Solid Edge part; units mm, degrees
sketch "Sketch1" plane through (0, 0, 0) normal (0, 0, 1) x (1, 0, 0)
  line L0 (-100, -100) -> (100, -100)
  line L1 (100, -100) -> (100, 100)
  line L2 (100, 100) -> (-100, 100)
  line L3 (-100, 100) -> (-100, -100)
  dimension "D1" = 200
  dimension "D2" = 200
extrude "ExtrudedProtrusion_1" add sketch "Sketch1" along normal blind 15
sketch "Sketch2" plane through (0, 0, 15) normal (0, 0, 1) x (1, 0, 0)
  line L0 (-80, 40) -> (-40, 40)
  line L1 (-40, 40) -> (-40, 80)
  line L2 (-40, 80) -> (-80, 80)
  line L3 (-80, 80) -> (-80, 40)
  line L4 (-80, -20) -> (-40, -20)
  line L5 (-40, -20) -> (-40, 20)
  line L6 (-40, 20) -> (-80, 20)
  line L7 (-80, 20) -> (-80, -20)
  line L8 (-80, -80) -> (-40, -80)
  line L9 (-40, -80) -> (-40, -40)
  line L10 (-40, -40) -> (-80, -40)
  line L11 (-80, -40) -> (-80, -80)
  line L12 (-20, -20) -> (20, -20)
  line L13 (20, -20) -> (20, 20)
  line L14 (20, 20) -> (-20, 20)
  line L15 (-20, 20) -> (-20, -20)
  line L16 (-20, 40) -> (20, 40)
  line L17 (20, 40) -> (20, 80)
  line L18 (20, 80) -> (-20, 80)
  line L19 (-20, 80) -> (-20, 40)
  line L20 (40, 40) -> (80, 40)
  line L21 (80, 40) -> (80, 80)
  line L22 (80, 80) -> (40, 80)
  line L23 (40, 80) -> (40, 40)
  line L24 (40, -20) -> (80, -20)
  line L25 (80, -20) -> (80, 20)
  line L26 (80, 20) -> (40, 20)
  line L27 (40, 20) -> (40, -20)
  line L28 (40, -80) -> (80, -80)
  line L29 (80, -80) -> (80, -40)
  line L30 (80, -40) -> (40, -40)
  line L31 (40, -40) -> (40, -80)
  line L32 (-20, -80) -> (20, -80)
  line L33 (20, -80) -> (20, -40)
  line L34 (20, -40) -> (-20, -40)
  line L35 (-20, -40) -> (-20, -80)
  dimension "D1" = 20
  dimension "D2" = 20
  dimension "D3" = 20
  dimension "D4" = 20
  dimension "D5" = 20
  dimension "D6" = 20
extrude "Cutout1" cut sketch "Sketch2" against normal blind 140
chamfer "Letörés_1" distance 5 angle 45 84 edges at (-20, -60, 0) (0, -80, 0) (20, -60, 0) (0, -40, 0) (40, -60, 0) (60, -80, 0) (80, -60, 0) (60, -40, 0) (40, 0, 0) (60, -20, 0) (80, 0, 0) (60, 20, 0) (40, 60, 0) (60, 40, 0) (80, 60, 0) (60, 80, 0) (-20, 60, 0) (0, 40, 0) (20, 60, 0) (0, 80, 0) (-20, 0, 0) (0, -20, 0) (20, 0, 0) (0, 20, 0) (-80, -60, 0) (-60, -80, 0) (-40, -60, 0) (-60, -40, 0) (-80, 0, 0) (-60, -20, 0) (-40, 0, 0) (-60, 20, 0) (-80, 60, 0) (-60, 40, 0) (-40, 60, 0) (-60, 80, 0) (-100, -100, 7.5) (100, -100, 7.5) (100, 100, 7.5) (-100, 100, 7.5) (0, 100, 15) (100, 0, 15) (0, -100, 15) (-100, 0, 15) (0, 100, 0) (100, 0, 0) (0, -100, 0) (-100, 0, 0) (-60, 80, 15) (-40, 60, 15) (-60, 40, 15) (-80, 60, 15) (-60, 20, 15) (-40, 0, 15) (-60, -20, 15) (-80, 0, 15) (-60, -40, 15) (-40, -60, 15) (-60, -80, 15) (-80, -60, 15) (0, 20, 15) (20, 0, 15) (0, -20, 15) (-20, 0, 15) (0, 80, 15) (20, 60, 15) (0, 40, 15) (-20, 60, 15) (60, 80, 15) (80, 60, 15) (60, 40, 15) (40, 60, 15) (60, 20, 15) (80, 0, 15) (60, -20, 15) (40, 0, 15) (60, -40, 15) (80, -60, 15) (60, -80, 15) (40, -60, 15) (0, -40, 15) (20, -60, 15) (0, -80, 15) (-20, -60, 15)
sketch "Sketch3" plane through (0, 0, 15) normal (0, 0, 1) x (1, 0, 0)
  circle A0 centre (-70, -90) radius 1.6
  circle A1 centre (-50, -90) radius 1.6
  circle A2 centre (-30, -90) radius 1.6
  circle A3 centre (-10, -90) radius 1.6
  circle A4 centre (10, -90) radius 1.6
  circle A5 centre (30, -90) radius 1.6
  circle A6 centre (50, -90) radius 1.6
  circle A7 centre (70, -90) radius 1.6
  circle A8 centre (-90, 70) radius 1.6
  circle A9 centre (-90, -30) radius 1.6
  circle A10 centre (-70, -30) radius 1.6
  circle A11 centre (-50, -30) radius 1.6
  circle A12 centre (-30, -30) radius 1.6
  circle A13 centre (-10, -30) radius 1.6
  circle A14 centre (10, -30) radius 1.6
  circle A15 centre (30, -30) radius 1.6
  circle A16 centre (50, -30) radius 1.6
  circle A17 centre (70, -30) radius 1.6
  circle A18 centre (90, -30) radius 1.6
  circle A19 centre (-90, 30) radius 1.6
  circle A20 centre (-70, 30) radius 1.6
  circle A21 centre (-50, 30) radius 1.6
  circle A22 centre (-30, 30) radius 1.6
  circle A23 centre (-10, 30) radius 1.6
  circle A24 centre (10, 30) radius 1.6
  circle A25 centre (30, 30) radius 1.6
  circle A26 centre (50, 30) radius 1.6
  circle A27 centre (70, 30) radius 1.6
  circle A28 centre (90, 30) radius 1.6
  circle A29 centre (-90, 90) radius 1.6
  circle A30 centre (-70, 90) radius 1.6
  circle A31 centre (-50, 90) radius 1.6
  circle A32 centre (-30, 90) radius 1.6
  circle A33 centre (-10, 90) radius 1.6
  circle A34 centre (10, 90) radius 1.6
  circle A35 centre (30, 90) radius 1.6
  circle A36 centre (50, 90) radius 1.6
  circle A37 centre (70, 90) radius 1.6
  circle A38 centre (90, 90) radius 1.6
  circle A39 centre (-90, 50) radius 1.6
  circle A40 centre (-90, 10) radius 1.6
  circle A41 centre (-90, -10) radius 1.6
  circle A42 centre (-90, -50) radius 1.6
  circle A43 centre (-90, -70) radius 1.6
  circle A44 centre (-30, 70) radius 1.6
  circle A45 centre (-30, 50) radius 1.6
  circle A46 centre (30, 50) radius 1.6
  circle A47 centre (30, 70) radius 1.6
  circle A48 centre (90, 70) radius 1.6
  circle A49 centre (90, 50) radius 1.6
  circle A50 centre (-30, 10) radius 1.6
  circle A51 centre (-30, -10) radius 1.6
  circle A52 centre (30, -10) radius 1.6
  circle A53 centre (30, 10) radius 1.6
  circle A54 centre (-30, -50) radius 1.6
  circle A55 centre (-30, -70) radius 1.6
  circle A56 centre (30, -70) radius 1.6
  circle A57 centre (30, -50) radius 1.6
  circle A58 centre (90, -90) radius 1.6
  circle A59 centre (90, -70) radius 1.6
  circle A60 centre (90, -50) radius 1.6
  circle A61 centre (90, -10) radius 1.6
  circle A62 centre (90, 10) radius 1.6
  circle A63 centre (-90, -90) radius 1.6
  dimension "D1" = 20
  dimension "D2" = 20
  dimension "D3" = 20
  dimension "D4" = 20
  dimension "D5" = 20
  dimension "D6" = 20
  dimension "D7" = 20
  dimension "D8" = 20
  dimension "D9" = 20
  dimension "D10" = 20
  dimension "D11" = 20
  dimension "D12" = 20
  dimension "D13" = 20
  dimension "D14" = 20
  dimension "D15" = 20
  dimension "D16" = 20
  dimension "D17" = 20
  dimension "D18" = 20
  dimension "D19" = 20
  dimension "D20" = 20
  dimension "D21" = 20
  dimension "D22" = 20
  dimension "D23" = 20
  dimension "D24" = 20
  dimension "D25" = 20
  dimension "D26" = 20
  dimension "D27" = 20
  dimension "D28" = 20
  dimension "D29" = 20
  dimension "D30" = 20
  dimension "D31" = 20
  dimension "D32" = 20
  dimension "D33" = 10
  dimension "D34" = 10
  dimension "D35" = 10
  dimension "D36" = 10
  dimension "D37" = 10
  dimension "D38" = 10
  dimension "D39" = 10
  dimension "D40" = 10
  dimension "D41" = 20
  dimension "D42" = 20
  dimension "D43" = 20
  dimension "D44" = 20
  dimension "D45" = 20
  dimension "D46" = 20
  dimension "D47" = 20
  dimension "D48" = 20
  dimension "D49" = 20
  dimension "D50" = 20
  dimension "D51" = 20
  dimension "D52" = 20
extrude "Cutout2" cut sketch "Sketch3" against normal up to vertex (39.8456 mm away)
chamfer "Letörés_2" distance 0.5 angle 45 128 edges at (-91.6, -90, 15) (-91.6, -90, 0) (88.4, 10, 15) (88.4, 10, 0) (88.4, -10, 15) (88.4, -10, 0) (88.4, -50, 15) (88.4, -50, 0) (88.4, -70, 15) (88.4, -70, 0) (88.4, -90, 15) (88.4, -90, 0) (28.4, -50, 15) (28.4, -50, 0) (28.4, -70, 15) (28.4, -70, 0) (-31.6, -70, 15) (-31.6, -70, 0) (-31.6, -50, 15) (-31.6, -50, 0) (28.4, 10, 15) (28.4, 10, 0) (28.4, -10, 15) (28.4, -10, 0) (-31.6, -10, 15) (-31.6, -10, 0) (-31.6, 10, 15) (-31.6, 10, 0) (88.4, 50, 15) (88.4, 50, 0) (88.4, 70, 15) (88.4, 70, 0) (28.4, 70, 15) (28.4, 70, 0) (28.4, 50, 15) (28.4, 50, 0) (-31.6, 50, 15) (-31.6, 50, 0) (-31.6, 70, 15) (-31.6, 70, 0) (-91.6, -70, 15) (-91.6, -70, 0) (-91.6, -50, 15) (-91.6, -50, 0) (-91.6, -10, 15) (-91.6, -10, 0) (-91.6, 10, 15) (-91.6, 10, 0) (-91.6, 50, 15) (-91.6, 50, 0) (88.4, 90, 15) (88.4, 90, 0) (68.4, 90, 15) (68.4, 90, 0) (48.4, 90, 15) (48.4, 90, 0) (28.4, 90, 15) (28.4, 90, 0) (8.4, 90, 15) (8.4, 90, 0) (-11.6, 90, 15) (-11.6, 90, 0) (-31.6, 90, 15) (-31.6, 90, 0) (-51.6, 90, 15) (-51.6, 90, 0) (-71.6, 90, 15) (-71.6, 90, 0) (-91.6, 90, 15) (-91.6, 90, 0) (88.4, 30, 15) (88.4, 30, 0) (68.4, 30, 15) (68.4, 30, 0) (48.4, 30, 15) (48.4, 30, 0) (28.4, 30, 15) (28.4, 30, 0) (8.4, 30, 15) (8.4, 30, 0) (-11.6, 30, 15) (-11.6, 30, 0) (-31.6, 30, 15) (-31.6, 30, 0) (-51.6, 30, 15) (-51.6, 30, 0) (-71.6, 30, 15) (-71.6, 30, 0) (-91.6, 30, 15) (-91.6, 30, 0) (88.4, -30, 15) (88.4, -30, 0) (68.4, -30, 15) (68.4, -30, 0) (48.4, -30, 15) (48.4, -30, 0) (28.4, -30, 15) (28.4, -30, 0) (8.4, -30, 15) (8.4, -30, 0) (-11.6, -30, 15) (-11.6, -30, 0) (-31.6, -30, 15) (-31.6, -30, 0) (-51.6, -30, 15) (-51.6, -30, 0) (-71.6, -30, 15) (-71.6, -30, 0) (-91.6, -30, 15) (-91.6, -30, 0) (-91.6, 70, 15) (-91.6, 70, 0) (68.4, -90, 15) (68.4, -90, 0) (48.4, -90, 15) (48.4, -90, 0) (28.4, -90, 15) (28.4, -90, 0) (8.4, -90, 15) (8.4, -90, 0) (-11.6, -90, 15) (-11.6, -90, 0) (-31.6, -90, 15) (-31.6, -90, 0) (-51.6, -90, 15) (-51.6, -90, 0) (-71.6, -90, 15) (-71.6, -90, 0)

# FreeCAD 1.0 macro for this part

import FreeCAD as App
import Part
import Sketcher
from FreeCAD import Vector


def edges_at(feature, points):
    """Names of the edges that pass closest to the given points."""
    edges = feature.Shape.Edges
    near = lambda p: min(range(len(edges)), key=lambda i: edges[i].distToShape(Part.Vertex(*p))[0])
    return sorted({f"Edge{near(p) + 1}" for p in points})

doc = App.newDocument("Part")
params = doc.addObject("Spreadsheet::Sheet", "Params")
for row, (alias, value) in enumerate([
    ("pad1_length", "15 mm"),
    ("sketch2_width", "40 mm"),
    ("pocket1_length", "140 mm"),
    ("chamfer_size", "5 mm"),
    ("sketch3_diameter", "3.2 mm"),
    ("pocket2_length", "39.8456 mm"),
    ("chamfer2_size", "0.5 mm"),
], start=1):
    params.set(f"A{row}", alias)
    params.set(f"B{row}", "=" + value)
    params.setAlias(f"B{row}", alias)

body = doc.addObject("PartDesign::Body", "Body")

sketch1 = body.newObject("Sketcher::SketchObject", "Sketch")
sketch1.AttachmentSupport = (doc.getObject("XY_Plane"), [""])
sketch1.MapMode = "FlatFace"
sketch1.addGeometry([
    Part.LineSegment(Vector(-100, 100, 0), Vector(-100, -100, 0)),
    Part.LineSegment(Vector(-100, -100, 0), Vector(100, -100, 0)),
    Part.LineSegment(Vector(100, -100, 0), Vector(100, 100, 0)),
    Part.LineSegment(Vector(100, 100, 0), Vector(-100, 100, 0)),
], False)
sketch1.addConstraint([
    Sketcher.Constraint("Coincident", 0, 2, 1, 1),
    Sketcher.Constraint("Coincident", 1, 2, 2, 1),
    Sketcher.Constraint("Coincident", 2, 2, 3, 1),
    Sketcher.Constraint("Coincident", 3, 2, 0, 1),
    Sketcher.Constraint("Vertical", 0),
    Sketcher.Constraint("Horizontal", 1),
    Sketcher.Constraint("Vertical", 2),
    Sketcher.Constraint("Horizontal", 3),
    Sketcher.Constraint("Symmetric", 0, 2, 2, 2, -1, 1),
    Sketcher.Constraint("Equal", 3, 0),
    Sketcher.Constraint("DistanceX", 0, 2, -1, 1, 100.0),
])
pad1 = body.newObject("PartDesign::Pad", "Pad")
pad1.Profile = sketch1
pad1.setExpression("Length", "Params.pad1_length")

sketch2 = body.newObject("Sketcher::SketchObject", "Sketch001")
sketch2.AttachmentSupport = (doc.getObject("XY_Plane"), [""])
sketch2.MapMode = "FlatFace"
sketch2.AttachmentOffset = App.Placement(Vector(0, 0, 15), App.Rotation())
sketch2.addGeometry([
    Part.LineSegment(Vector(-80, 80, 0), Vector(-80, 40, 0)),
    Part.LineSegment(Vector(-80, 40, 0), Vector(-40, 40, 0)),
    Part.LineSegment(Vector(-40, 40, 0), Vector(-40, 80, 0)),
    Part.LineSegment(Vector(-40, 80, 0), Vector(-80, 80, 0)),
    Part.LineSegment(Vector(-80, 20, 0), Vector(-80, -20, 0)),
    Part.LineSegment(Vector(-80, -20, 0), Vector(-40, -20, 0)),
    Part.LineSegment(Vector(-40, -20, 0), Vector(-40, 20, 0)),
    Part.LineSegment(Vector(-40, 20, 0), Vector(-80, 20, 0)),
    Part.LineSegment(Vector(-80, -40, 0), Vector(-80, -80, 0)),
    Part.LineSegment(Vector(-80, -80, 0), Vector(-40, -80, 0)),
    Part.LineSegment(Vector(-40, -80, 0), Vector(-40, -40, 0)),
    Part.LineSegment(Vector(-40, -40, 0), Vector(-80, -40, 0)),
    Part.LineSegment(Vector(-20, 20, 0), Vector(-20, -20, 0)),
    Part.LineSegment(Vector(-20, -20, 0), Vector(20, -20, 0)),
    Part.LineSegment(Vector(20, -20, 0), Vector(20, 20, 0)),
    Part.LineSegment(Vector(20, 20, 0), Vector(-20, 20, 0)),
    Part.LineSegment(Vector(-20, 80, 0), Vector(-20, 40, 0)),
    Part.LineSegment(Vector(-20, 40, 0), Vector(20, 40, 0)),
    Part.LineSegment(Vector(20, 40, 0), Vector(20, 80, 0)),
    Part.LineSegment(Vector(20, 80, 0), Vector(-20, 80, 0)),
    Part.LineSegment(Vector(40, 80, 0), Vector(40, 40, 0)),
    Part.LineSegment(Vector(40, 40, 0), Vector(80, 40, 0)),
    Part.LineSegment(Vector(80, 40, 0), Vector(80, 80, 0)),
    Part.LineSegment(Vector(80, 80, 0), Vector(40, 80, 0)),
    Part.LineSegment(Vector(40, 20, 0), Vector(40, -20, 0)),
    Part.LineSegment(Vector(40, -20, 0), Vector(80, -20, 0)),
    Part.LineSegment(Vector(80, -20, 0), Vector(80, 20, 0)),
    Part.LineSegment(Vector(80, 20, 0), Vector(40, 20, 0)),
    Part.LineSegment(Vector(40, -40, 0), Vector(40, -80, 0)),
    Part.LineSegment(Vector(40, -80, 0), Vector(80, -80, 0)),
    Part.LineSegment(Vector(80, -80, 0), Vector(80, -40, 0)),
    Part.LineSegment(Vector(80, -40, 0), Vector(40, -40, 0)),
    Part.LineSegment(Vector(-20, -40, 0), Vector(-20, -80, 0)),
    Part.LineSegment(Vector(-20, -80, 0), Vector(20, -80, 0)),
    Part.LineSegment(Vector(20, -80, 0), Vector(20, -40, 0)),
    Part.LineSegment(Vector(20, -40, 0), Vector(-20, -40, 0)),
], False)
sketch2.addConstraint([
    Sketcher.Constraint("Coincident", 0, 2, 1, 1),
    Sketcher.Constraint("Coincident", 1, 2, 2, 1),
    Sketcher.Constraint("Coincident", 2, 2, 3, 1),
    Sketcher.Constraint("Coincident", 3, 2, 0, 1),
    Sketcher.Constraint("Coincident", 4, 2, 5, 1),
    Sketcher.Constraint("Coincident", 5, 2, 6, 1),
    Sketcher.Constraint("Coincident", 6, 2, 7, 1),
    Sketcher.Constraint("Coincident", 7, 2, 4, 1),
    Sketcher.Constraint("Coincident", 8, 2, 9, 1),
    Sketcher.Constraint("Coincident", 9, 2, 10, 1),
    Sketcher.Constraint("Coincident", 10, 2, 11, 1),
    Sketcher.Constraint("Coincident", 11, 2, 8, 1),
    Sketcher.Constraint("Coincident", 12, 2, 13, 1),
    Sketcher.Constraint("Coincident", 13, 2, 14, 1),
    Sketcher.Constraint("Coincident", 14, 2, 15, 1),
    Sketcher.Constraint("Coincident", 15, 2, 12, 1),
    Sketcher.Constraint("Coincident", 16, 2, 17, 1),
    Sketcher.Constraint("Coincident", 17, 2, 18, 1),
    Sketcher.Constraint("Coincident", 18, 2, 19, 1),
    Sketcher.Constraint("Coincident", 19, 2, 16, 1),
    Sketcher.Constraint("Coincident", 20, 2, 21, 1),
    Sketcher.Constraint("Coincident", 21, 2, 22, 1),
    Sketcher.Constraint("Coincident", 22, 2, 23, 1),
    Sketcher.Constraint("Coincident", 23, 2, 20, 1),
    Sketcher.Constraint("Coincident", 24, 2, 25, 1),
    Sketcher.Constraint("Coincident", 25, 2, 26, 1),
    Sketcher.Constraint("Coincident", 26, 2, 27, 1),
    Sketcher.Constraint("Coincident", 27, 2, 24, 1),
    Sketcher.Constraint("Coincident", 28, 2, 29, 1),
    Sketcher.Constraint("Coincident", 29, 2, 30, 1),
    Sketcher.Constraint("Coincident", 30, 2, 31, 1),
    Sketcher.Constraint("Coincident", 31, 2, 28, 1),
    Sketcher.Constraint("Coincident", 32, 2, 33, 1),
    Sketcher.Constraint("Coincident", 33, 2, 34, 1),
    Sketcher.Constraint("Coincident", 34, 2, 35, 1),
    Sketcher.Constraint("Coincident", 35, 2, 32, 1),
    Sketcher.Constraint("Vertical", 0),
    Sketcher.Constraint("Horizontal", 1),
    Sketcher.Constraint("Vertical", 2),
    Sketcher.Constraint("Horizontal", 3),
    Sketcher.Constraint("Vertical", 4),
    Sketcher.Constraint("Horizontal", 5),
    Sketcher.Constraint("Vertical", 6),
    Sketcher.Constraint("Horizontal", 7),
    Sketcher.Constraint("Vertical", 8),
    Sketcher.Constraint("Horizontal", 9),
    Sketcher.Constraint("Vertical", 10),
    Sketcher.Constraint("Horizontal", 11),
    Sketcher.Constraint("Vertical", 12),
    Sketcher.Constraint("Horizontal", 13),
    Sketcher.Constraint("Vertical", 14),
    Sketcher.Constraint("Horizontal", 15),
    Sketcher.Constraint("Vertical", 16),
    Sketcher.Constraint("Horizontal", 17),
    Sketcher.Constraint("Vertical", 18),
    Sketcher.Constraint("Horizontal", 19),
    Sketcher.Constraint("Vertical", 20),
    Sketcher.Constraint("Horizontal", 21),
    Sketcher.Constraint("Vertical", 22),
    Sketcher.Constraint("Horizontal", 23),
    Sketcher.Constraint("Vertical", 24),
    Sketcher.Constraint("Horizontal", 25),
    Sketcher.Constraint("Vertical", 26),
    Sketcher.Constraint("Horizontal", 27),
    Sketcher.Constraint("Vertical", 28),
    Sketcher.Constraint("Horizontal", 29),
    Sketcher.Constraint("Vertical", 30),
    Sketcher.Constraint("Horizontal", 31),
    Sketcher.Constraint("Vertical", 32),
    Sketcher.Constraint("Horizontal", 33),
    Sketcher.Constraint("Vertical", 34),
    Sketcher.Constraint("Horizontal", 35),
    Sketcher.Constraint("Symmetric", 12, 2, 14, 2, -1, 1),
    Sketcher.Constraint("Symmetric", 10, 2, 20, 2, -1, 1),
    Sketcher.Constraint("Symmetric", 8, 2, 22, 2, -1, 1),
    Sketcher.Constraint("Symmetric", 6, 2, 24, 2, -1, 1),
    Sketcher.Constraint("Symmetric", 4, 2, 26, 2, -1, 1),
    Sketcher.Constraint("Symmetric", 2, 2, 28, 2, -1, 1),
    Sketcher.Constraint("Symmetric", 0, 2, 30, 2, -1, 1),
    Sketcher.Constraint("Symmetric", 18, 2, 32, 2, -1, 1),
    Sketcher.Constraint("Symmetric", 16, 2, 34, 2, -1, 1),
    Sketcher.Constraint("Symmetric", 1, 2, 20, 2, -2),
    Sketcher.Constraint("Symmetric", 3, 2, 22, 2, -2),
    Sketcher.Constraint("Horizontal", 5, 2, 12, 2),
    Sketcher.Constraint("Horizontal", 7, 2, 14, 2),
    Sketcher.Constraint("Horizontal", 1, 2, 16, 2),
    Sketcher.Constraint("Horizontal", 3, 2, 18, 2),
    Sketcher.Constraint("Vertical", 3, 2, 4, 2),
    Sketcher.Constraint("Vertical", 2, 2, 5, 2),
    Sketcher.Constraint("Vertical", 15, 2, 16, 2),
    Sketcher.Constraint("Vertical", 14, 2, 17, 2),
    Sketcher.Constraint("Equal", 11, 13),
    Sketcher.Constraint("Equal", 35, 0),
    Sketcher.Constraint("Equal", 2, 4),
    Sketcher.Constraint("DistanceX", 1, 1, 1, 2, 40.0),
    Sketcher.Constraint("DistanceY", -1, 1, 0, 2, 40.0),
    Sketcher.Constraint("DistanceX", 1, 2, -1, 1, 40.0),
])
sketch2.setExpression("Constraints[94]", "Params.sketch2_width")
pocket1 = body.newObject("PartDesign::Pocket", "Pocket")
pocket1.Profile = sketch2
pocket1.setExpression("Length", "Params.pocket1_length")
doc.recompute()

chamfer = body.newObject("PartDesign::Chamfer", "Chamfer")
chamfer.Base = (pocket1, edges_at(pocket1, [
    (-20, -60, 0),
    (0, -80, 0),
    (20, -60, 0),
    (0, -40, 0),
    (40, -60, 0),
    (60, -80, 0),
    (80, -60, 0),
    (60, -40, 0),
    (40, 0, 0),
    (60, -20, 0),
    (80, 0, 0),
    (60, 20, 0),
    (40, 60, 0),
    (60, 40, 0),
    (80, 60, 0),
    (60, 80, 0),
    (-20, 60, 0),
    (0, 40, 0),
    (20, 60, 0),
    (0, 80, 0),
    (-20, 0, 0),
    (0, -20, 0),
    (20, 0, 0),
    (0, 20, 0),
    (-80, -60, 0),
    (-60, -80, 0),
    (-40, -60, 0),
    (-60, -40, 0),
    (-80, 0, 0),
    (-60, -20, 0),
    (-40, 0, 0),
    (-60, 20, 0),
    (-80, 60, 0),
    (-60, 40, 0),
    (-40, 60, 0),
    (-60, 80, 0),
    (-100, -100, 7.5),
    (100, -100, 7.5),
    (100, 100, 7.5),
    (-100, 100, 7.5),
    (0, 100, 15),
    (100, 0, 15),
    (0, -100, 15),
    (-100, 0, 15),
    (0, 100, 0),
    (100, 0, 0),
    (0, -100, 0),
    (-100, 0, 0),
    (-60, 80, 15),
    (-40, 60, 15),
    (-60, 40, 15),
    (-80, 60, 15),
    (-60, 20, 15),
    (-40, 0, 15),
    (-60, -20, 15),
    (-80, 0, 15),
    (-60, -40, 15),
    (-40, -60, 15),
    (-60, -80, 15),
    (-80, -60, 15),
    (0, 20, 15),
    (20, 0, 15),
    (0, -20, 15),
    (-20, 0, 15),
    (0, 80, 15),
    (20, 60, 15),
    (0, 40, 15),
    (-20, 60, 15),
    (60, 80, 15),
    (80, 60, 15),
    (60, 40, 15),
    (40, 60, 15),
    (60, 20, 15),
    (80, 0, 15),
    (60, -20, 15),
    (40, 0, 15),
    (60, -40, 15),
    (80, -60, 15),
    (60, -80, 15),
    (40, -60, 15),
    (0, -40, 15),
    (20, -60, 15),
    (0, -80, 15),
    (-20, -60, 15),
]))
chamfer.setExpression("Size", "Params.chamfer_size")

sketch3 = body.newObject("Sketcher::SketchObject", "Sketch002")
sketch3.AttachmentSupport = (doc.getObject("XY_Plane"), [""])
sketch3.MapMode = "FlatFace"
sketch3.AttachmentOffset = App.Placement(Vector(0, 0, 15), App.Rotation())
sketch3.addGeometry([
    Part.Circle(Vector(-70, -90, 0), Vector(0, 0, 1), 1.6),
    Part.Circle(Vector(-50, -90, 0), Vector(0, 0, 1), 1.6),
    Part.Circle(Vector(-30, -90, 0), Vector(0, 0, 1), 1.6),
    Part.Circle(Vector(-10, -90, 0), Vector(0, 0, 1), 1.6),
    Part.Circle(Vector(10, -90, 0), Vector(0, 0, 1), 1.6),
    Part.Circle(Vector(30, -90, 0), Vector(0, 0, 1), 1.6),
    Part.Circle(Vector(50, -90, 0), Vector(0, 0, 1), 1.6),
    Part.Circle(Vector(70, -90, 0), Vector(0, 0, 1), 1.6),
    Part.Circle(Vector(-90, 70, 0), Vector(0, 0, 1), 1.6),
    Part.Circle(Vector(-90, -30, 0), Vector(0, 0, 1), 1.6),
    Part.Circle(Vector(-70, -30, 0), Vector(0, 0, 1), 1.6),
    Part.Circle(Vector(-50, -30, 0), Vector(0, 0, 1), 1.6),
    Part.Circle(Vector(-30, -30, 0), Vector(0, 0, 1), 1.6),
    Part.Circle(Vector(-10, -30, 0), Vector(0, 0, 1), 1.6),
    Part.Circle(Vector(10, -30, 0), Vector(0, 0, 1), 1.6),
    Part.Circle(Vector(30, -30, 0), Vector(0, 0, 1), 1.6),
    Part.Circle(Vector(50, -30, 0), Vector(0, 0, 1), 1.6),
    Part.Circle(Vector(70, -30, 0), Vector(0, 0, 1), 1.6),
    Part.Circle(Vector(90, -30, 0), Vector(0, 0, 1), 1.6),
    Part.Circle(Vector(-90, 30, 0), Vector(0, 0, 1), 1.6),
    Part.Circle(Vector(-70, 30, 0), Vector(0, 0, 1), 1.6),
    Part.Circle(Vector(-50, 30, 0), Vector(0, 0, 1), 1.6),
    Part.Circle(Vector(-30, 30, 0), Vector(0, 0, 1), 1.6),
    Part.Circle(Vector(-10, 30, 0), Vector(0, 0, 1), 1.6),
    Part.Circle(Vector(10, 30, 0), Vector(0, 0, 1), 1.6),
    Part.Circle(Vector(30, 30, 0), Vector(0, 0, 1), 1.6),
    Part.Circle(Vector(50, 30, 0), Vector(0, 0, 1), 1.6),
    Part.Circle(Vector(70, 30, 0), Vector(0, 0, 1), 1.6),
    Part.Circle(Vector(90, 30, 0), Vector(0, 0, 1), 1.6),
    Part.Circle(Vector(-90, 90, 0), Vector(0, 0, 1), 1.6),
    Part.Circle(Vector(-70, 90, 0), Vector(0, 0, 1), 1.6),
    Part.Circle(Vector(-50, 90, 0), Vector(0, 0, 1), 1.6),
    Part.Circle(Vector(-30, 90, 0), Vector(0, 0, 1), 1.6),
    Part.Circle(Vector(-10, 90, 0), Vector(0, 0, 1), 1.6),
    Part.Circle(Vector(10, 90, 0), Vector(0, 0, 1), 1.6),
    Part.Circle(Vector(30, 90, 0), Vector(0, 0, 1), 1.6),
    Part.Circle(Vector(50, 90, 0), Vector(0, 0, 1), 1.6),
    Part.Circle(Vector(70, 90, 0), Vector(0, 0, 1), 1.6),
    Part.Circle(Vector(90, 90, 0), Vector(0, 0, 1), 1.6),
    Part.Circle(Vector(-90, 50, 0), Vector(0, 0, 1), 1.6),
    Part.Circle(Vector(-90, 10, 0), Vector(0, 0, 1), 1.6),
    Part.Circle(Vector(-90, -10, 0), Vector(0, 0, 1), 1.6),
    Part.Circle(Vector(-90, -50, 0), Vector(0, 0, 1), 1.6),
    Part.Circle(Vector(-90, -70, 0), Vector(0, 0, 1), 1.6),
    Part.Circle(Vector(-30, 70, 0), Vector(0, 0, 1), 1.6),
    Part.Circle(Vector(-30, 50, 0), Vector(0, 0, 1), 1.6),
    Part.Circle(Vector(30, 50, 0), Vector(0, 0, 1), 1.6),
    Part.Circle(Vector(30, 70, 0), Vector(0, 0, 1), 1.6),
    Part.Circle(Vector(90, 70, 0), Vector(0, 0, 1), 1.6),
    Part.Circle(Vector(90, 50, 0), Vector(0, 0, 1), 1.6),
    Part.Circle(Vector(-30, 10, 0), Vector(0, 0, 1), 1.6),
    Part.Circle(Vector(-30, -10, 0), Vector(0, 0, 1), 1.6),
    Part.Circle(Vector(30, -10, 0), Vector(0, 0, 1), 1.6),
    Part.Circle(Vector(30, 10, 0), Vector(0, 0, 1), 1.6),
    Part.Circle(Vector(-30, -50, 0), Vector(0, 0, 1), 1.6),
    Part.Circle(Vector(-30, -70, 0), Vector(0, 0, 1), 1.6),
    Part.Circle(Vector(30, -70, 0), Vector(0, 0, 1), 1.6),
    Part.Circle(Vector(30, -50, 0), Vector(0, 0, 1), 1.6),
    Part.Circle(Vector(90, -90, 0), Vector(0, 0, 1), 1.6),
    Part.Circle(Vector(90, -70, 0), Vector(0, 0, 1), 1.6),
    Part.Circle(Vector(90, -50, 0), Vector(0, 0, 1), 1.6),
    Part.Circle(Vector(90, -10, 0), Vector(0, 0, 1), 1.6),
    Part.Circle(Vector(90, 10, 0), Vector(0, 0, 1), 1.6),
    Part.Circle(Vector(-90, -90, 0), Vector(0, 0, 1), 1.6),
], False)
sketch3.addConstraint([
    Sketcher.Constraint("Equal", 0, 1),
    Sketcher.Constraint("Equal", 1, 2),
    Sketcher.Constraint("Equal", 2, 3),
    Sketcher.Constraint("Equal", 3, 4),
    Sketcher.Constraint("Equal", 4, 5),
    Sketcher.Constraint("Equal", 5, 6),
    Sketcher.Constraint("Equal", 6, 7),
    Sketcher.Constraint("Equal", 7, 8),
    Sketcher.Constraint("Equal", 8, 9),
    Sketcher.Constraint("Equal", 9, 10),
    Sketcher.Constraint("Equal", 10, 11),
    Sketcher.Constraint("Equal", 11, 12),
    Sketcher.Constraint("Equal", 12, 13),
    Sketcher.Constraint("Equal", 13, 14),
    Sketcher.Constraint("Equal", 14, 15),
    Sketcher.Constraint("Equal", 15, 16),
    Sketcher.Constraint("Equal", 16, 17),
    Sketcher.Constraint("Equal", 17, 18),
    Sketcher.Constraint("Equal", 18, 19),
    Sketcher.Constraint("Equal", 19, 20),
    Sketcher.Constraint("Equal", 20, 21),
    Sketcher.Constraint("Equal", 21, 22),
    Sketcher.Constraint("Equal", 22, 23),
    Sketcher.Constraint("Equal", 23, 24),
    Sketcher.Constraint("Equal", 24, 25),
    Sketcher.Constraint("Equal", 25, 26),
    Sketcher.Constraint("Equal", 26, 27),
    Sketcher.Constraint("Equal", 27, 28),
    Sketcher.Constraint("Equal", 28, 29),
    Sketcher.Constraint("Equal", 29, 30),
    Sketcher.Constraint("Equal", 30, 31),
    Sketcher.Constraint("Equal", 31, 32),
    Sketcher.Constraint("Equal", 32, 33),
    Sketcher.Constraint("Equal", 33, 34),
    Sketcher.Constraint("Equal", 34, 35),
    Sketcher.Constraint("Equal", 35, 36),
    Sketcher.Constraint("Equal", 36, 37),
    Sketcher.Constraint("Equal", 37, 38),
    Sketcher.Constraint("Equal", 38, 39),
    Sketcher.Constraint("Equal", 39, 40),
    Sketcher.Constraint("Equal", 40, 41),
    Sketcher.Constraint("Equal", 41, 42),
    Sketcher.Constraint("Equal", 42, 43),
    Sketcher.Constraint("Equal", 43, 44),
    Sketcher.Constraint("Equal", 44, 45),
    Sketcher.Constraint("Equal", 45, 46),
    Sketcher.Constraint("Equal", 46, 47),
    Sketcher.Constraint("Equal", 47, 48),
    Sketcher.Constraint("Equal", 48, 49),
    Sketcher.Constraint("Equal", 49, 50),
    Sketcher.Constraint("Equal", 50, 51),
    Sketcher.Constraint("Equal", 51, 52),
    Sketcher.Constraint("Equal", 52, 53),
    Sketcher.Constraint("Equal", 53, 54),
    Sketcher.Constraint("Equal", 54, 55),
    Sketcher.Constraint("Equal", 55, 56),
    Sketcher.Constraint("Equal", 56, 57),
    Sketcher.Constraint("Equal", 57, 58),
    Sketcher.Constraint("Equal", 58, 59),
    Sketcher.Constraint("Equal", 59, 60),
    Sketcher.Constraint("Equal", 60, 61),
    Sketcher.Constraint("Equal", 61, 62),
    Sketcher.Constraint("Equal", 62, 63),
    Sketcher.Constraint("Symmetric", 18, 3, 19, 3, -1, 1),
    Sketcher.Constraint("Symmetric", 17, 3, 20, 3, -1, 1),
    Sketcher.Constraint("Symmetric", 16, 3, 21, 3, -1, 1),
    Sketcher.Constraint("Symmetric", 15, 3, 22, 3, -1, 1),
    Sketcher.Constraint("Symmetric", 14, 3, 23, 3, -1, 1),
    Sketcher.Constraint("Symmetric", 13, 3, 24, 3, -1, 1),
    Sketcher.Constraint("Symmetric", 12, 3, 25, 3, -1, 1),
    Sketcher.Constraint("Symmetric", 11, 3, 26, 3, -1, 1),
    Sketcher.Constraint("Symmetric", 10, 3, 27, 3, -1, 1),
    Sketcher.Constraint("Symmetric", 9, 3, 28, 3, -1, 1),
    Sketcher.Constraint("Symmetric", 7, 3, 30, 3, -1, 1),
    Sketcher.Constraint("Symmetric", 6, 3, 31, 3, -1, 1),
    Sketcher.Constraint("Symmetric", 5, 3, 32, 3, -1, 1),
    Sketcher.Constraint("Symmetric", 4, 3, 33, 3, -1, 1),
    Sketcher.Constraint("Symmetric", 3, 3, 34, 3, -1, 1),
    Sketcher.Constraint("Symmetric", 2, 3, 35, 3, -1, 1),
    Sketcher.Constraint("Symmetric", 1, 3, 36, 3, -1, 1),
    Sketcher.Constraint("Symmetric", 0, 3, 37, 3, -1, 1),
    Sketcher.Constraint("Symmetric", 43, 3, 48, 3, -1, 1),
    Sketcher.Constraint("Symmetric", 42, 3, 49, 3, -1, 1),
    Sketcher.Constraint("Symmetric", 50, 3, 52, 3, -1, 1),
    Sketcher.Constraint("Symmetric", 51, 3, 53, 3, -1, 1),
    Sketcher.Constraint("Symmetric", 46, 3, 54, 3, -1, 1),
    Sketcher.Constraint("Symmetric", 47, 3, 55, 3, -1, 1),
    Sketcher.Constraint("Symmetric", 44, 3, 56, 3, -1, 1),
    Sketcher.Constraint("Symmetric", 45, 3, 57, 3, -1, 1),
    Sketcher.Constraint("Symmetric", 29, 3, 58, 3, -1, 1),
    Sketcher.Constraint("Symmetric", 8, 3, 59, 3, -1, 1),
    Sketcher.Constraint("Symmetric", 39, 3, 60, 3, -1, 1),
    Sketcher.Constraint("Symmetric", 40, 3, 61, 3, -1, 1),
    Sketcher.Constraint("Symmetric", 41, 3, 62, 3, -1, 1),
    Sketcher.Constraint("Symmetric", 38, 3, 63, 3, -1, 1),
    Sketcher.Constraint("Symmetric", 3, 3, 4, 3, -2),
    Sketcher.Constraint("Symmetric", 2, 3, 5, 3, -2),
    Sketcher.Constraint("Symmetric", 1, 3, 6, 3, -2),
    Sketcher.Constraint("Symmetric", 0, 3, 7, 3, -2),
    Sketcher.Constraint("Symmetric", 13, 3, 14, 3, -2),
    Sketcher.Constraint("Symmetric", 12, 3, 15, 3, -2),
    Sketcher.Constraint("Symmetric", 11, 3, 16, 3, -2),
    Sketcher.Constraint("Symmetric", 10, 3, 17, 3, -2),
    Sketcher.Constraint("Symmetric", 9, 3, 18, 3, -2),
    Sketcher.Constraint("Symmetric", 29, 3, 38, 3, -2),
    Sketcher.Constraint("Symmetric", 45, 3, 46, 3, -2),
    Sketcher.Constraint("Symmetric", 44, 3, 47, 3, -2),
    Sketcher.Constraint("Symmetric", 8, 3, 48, 3, -2),
    Sketcher.Constraint("Symmetric", 39, 3, 49, 3, -2),
    Sketcher.Constraint("Symmetric", 51, 3, 52, 3, -2),
    Sketcher.Constraint("Symmetric", 41, 3, 61, 3, -2),
    Sketcher.Constraint("Horizontal", 0, 3, 1, 3),
    Sketcher.Constraint("Horizontal", 1, 3, 2, 3),
    Sketcher.Constraint("Horizontal", 2, 3, 3, 3),
    Sketcher.Constraint("Horizontal", 9, 3, 10, 3),
    Sketcher.Constraint("Horizontal", 10, 3, 11, 3),
    Sketcher.Constraint("Horizontal", 11, 3, 12, 3),
    Sketcher.Constraint("Horizontal", 12, 3, 13, 3),
    Sketcher.Constraint("Horizontal", 29, 3, 30, 3),
    Sketcher.Constraint("Horizontal", 8, 3, 44, 3),
    Sketcher.Constraint("Horizontal", 39, 3, 45, 3),
    Sketcher.Constraint("Horizontal", 40, 3, 50, 3),
    Sketcher.Constraint("Vertical", 8, 3, 9, 3),
    Sketcher.Constraint("Vertical", 0, 3, 10, 3),
    Sketcher.Constraint("Vertical", 1, 3, 11, 3),
    Sketcher.Constraint("Vertical", 2, 3, 12, 3),
    Sketcher.Constraint("Vertical", 3, 3, 13, 3),
    Sketcher.Constraint("Vertical", 19, 3, 29, 3),
    Sketcher.Constraint("Vertical", 29, 3, 39, 3),
    Sketcher.Constraint("Vertical", 39, 3, 40, 3),
    Sketcher.Constraint("Vertical", 32, 3, 44, 3),
    Sketcher.Constraint("Vertical", 44, 3, 45, 3),
    Sketcher.Constraint("Vertical", 45, 3, 50, 3),
    Sketcher.Constraint("DistanceY", 0, 3, -1, 1, 90.0),
    Sketcher.Constraint("DistanceX", 8, 3, -1, 1, 90.0),
    Sketcher.Constraint("Diameter", 0, 3.2),
    Sketcher.Constraint("DistanceX", 0, 3, -1, 1, 70.0),
    Sketcher.Constraint("DistanceX", 1, 3, -1, 1, 50.0),
    Sketcher.Constraint("DistanceX", 2, 3, -1, 1, 30.0),
    Sketcher.Constraint("DistanceX", 3, 3, -1, 1, 10.0),
    Sketcher.Constraint("DistanceY", -1, 1, 8, 3, 70.0),
    Sketcher.Constraint("DistanceY", 9, 3, -1, 1, 30.0),
    Sketcher.Constraint("DistanceY", -1, 1, 39, 3, 50.0),
    Sketcher.Constraint("DistanceY", -1, 1, 40, 3, 10.0),
])
sketch3.setExpression("Constraints[135]", "Params.sketch3_diameter")
pocket2 = body.newObject("PartDesign::Pocket", "Pocket001")
pocket2.Profile = sketch3
pocket2.setExpression("Length", "Params.pocket2_length")
doc.recompute()

chamfer2 = body.newObject("PartDesign::Chamfer", "Chamfer001")
chamfer2.Base = (pocket2, edges_at(pocket2, [
    (-91.6, -90, 15),
    (-91.6, -90, 0),
    (88.4, 10, 15),
    (88.4, 10, 0),
    (88.4, -10, 15),
    (88.4, -10, 0),
    (88.4, -50, 15),
    (88.4, -50, 0),
    (88.4, -70, 15),
    (88.4, -70, 0),
    (88.4, -90, 15),
    (88.4, -90, 0),
    (28.4, -50, 15),
    (28.4, -50, 0),
    (28.4, -70, 15),
    (28.4, -70, 0),
    (-31.6, -70, 15),
    (-31.6, -70, 0),
    (-31.6, -50, 15),
    (-31.6, -50, 0),
    (28.4, 10, 15),
    (28.4, 10, 0),
    (28.4, -10, 15),
    (28.4, -10, 0),
    (-31.6, -10, 15),
    (-31.6, -10, 0),
    (-31.6, 10, 15),
    (-31.6, 10, 0),
    (88.4, 50, 15),
    (88.4, 50, 0),
    (88.4, 70, 15),
    (88.4, 70, 0),
    (28.4, 70, 15),
    (28.4, 70, 0),
    (28.4, 50, 15),
    (28.4, 50, 0),
    (-31.6, 50, 15),
    (-31.6, 50, 0),
    (-31.6, 70, 15),
    (-31.6, 70, 0),
    (-91.6, -70, 15),
    (-91.6, -70, 0),
    (-91.6, -50, 15),
    (-91.6, -50, 0),
    (-91.6, -10, 15),
    (-91.6, -10, 0),
    (-91.6, 10, 15),
    (-91.6, 10, 0),
    (-91.6, 50, 15),
    (-91.6, 50, 0),
    (88.4, 90, 15),
    (88.4, 90, 0),
    (68.4, 90, 15),
    (68.4, 90, 0),
    (48.4, 90, 15),
    (48.4, 90, 0),
    (28.4, 90, 15),
    (28.4, 90, 0),
    (8.4, 90, 15),
    (8.4, 90, 0),
    (-11.6, 90, 15),
    (-11.6, 90, 0),
    (-31.6, 90, 15),
    (-31.6, 90, 0),
    (-51.6, 90, 15),
    (-51.6, 90, 0),
    (-71.6, 90, 15),
    (-71.6, 90, 0),
    (-91.6, 90, 15),
    (-91.6, 90, 0),
    (88.4, 30, 15),
    (88.4, 30, 0),
    (68.4, 30, 15),
    (68.4, 30, 0),
    (48.4, 30, 15),
    (48.4, 30, 0),
    (28.4, 30, 15),
    (28.4, 30, 0),
    (8.4, 30, 15),
    (8.4, 30, 0),
    (-11.6, 30, 15),
    (-11.6, 30, 0),
    (-31.6, 30, 15),
    (-31.6, 30, 0),
    (-51.6, 30, 15),
    (-51.6, 30, 0),
    (-71.6, 30, 15),
    (-71.6, 30, 0),
    (-91.6, 30, 15),
    (-91.6, 30, 0),
    (88.4, -30, 15),
    (88.4, -30, 0),
    (68.4, -30, 15),
    (68.4, -30, 0),
    (48.4, -30, 15),
    (48.4, -30, 0),
    (28.4, -30, 15),
    (28.4, -30, 0),
    (8.4, -30, 15),
    (8.4, -30, 0),
    (-11.6, -30, 15),
    (-11.6, -30, 0),
    (-31.6, -30, 15),
    (-31.6, -30, 0),
    (-51.6, -30, 15),
    (-51.6, -30, 0),
    (-71.6, -30, 15),
    (-71.6, -30, 0),
    (-91.6, -30, 15),
    (-91.6, -30, 0),
    (-91.6, 70, 15),
    (-91.6, 70, 0),
    (68.4, -90, 15),
    (68.4, -90, 0),
    (48.4, -90, 15),
    (48.4, -90, 0),
    (28.4, -90, 15),
    (28.4, -90, 0),
    (8.4, -90, 15),
    (8.4, -90, 0),
    (-11.6, -90, 15),
    (-11.6, -90, 0),
    (-31.6, -90, 15),
    (-31.6, -90, 0),
    (-51.6, -90, 15),
    (-51.6, -90, 0),
    (-71.6, -90, 15),
    (-71.6, -90, 0),
]))
chamfer2.setExpression("Size", "Params.chamfer2_size")

doc.recompute()
